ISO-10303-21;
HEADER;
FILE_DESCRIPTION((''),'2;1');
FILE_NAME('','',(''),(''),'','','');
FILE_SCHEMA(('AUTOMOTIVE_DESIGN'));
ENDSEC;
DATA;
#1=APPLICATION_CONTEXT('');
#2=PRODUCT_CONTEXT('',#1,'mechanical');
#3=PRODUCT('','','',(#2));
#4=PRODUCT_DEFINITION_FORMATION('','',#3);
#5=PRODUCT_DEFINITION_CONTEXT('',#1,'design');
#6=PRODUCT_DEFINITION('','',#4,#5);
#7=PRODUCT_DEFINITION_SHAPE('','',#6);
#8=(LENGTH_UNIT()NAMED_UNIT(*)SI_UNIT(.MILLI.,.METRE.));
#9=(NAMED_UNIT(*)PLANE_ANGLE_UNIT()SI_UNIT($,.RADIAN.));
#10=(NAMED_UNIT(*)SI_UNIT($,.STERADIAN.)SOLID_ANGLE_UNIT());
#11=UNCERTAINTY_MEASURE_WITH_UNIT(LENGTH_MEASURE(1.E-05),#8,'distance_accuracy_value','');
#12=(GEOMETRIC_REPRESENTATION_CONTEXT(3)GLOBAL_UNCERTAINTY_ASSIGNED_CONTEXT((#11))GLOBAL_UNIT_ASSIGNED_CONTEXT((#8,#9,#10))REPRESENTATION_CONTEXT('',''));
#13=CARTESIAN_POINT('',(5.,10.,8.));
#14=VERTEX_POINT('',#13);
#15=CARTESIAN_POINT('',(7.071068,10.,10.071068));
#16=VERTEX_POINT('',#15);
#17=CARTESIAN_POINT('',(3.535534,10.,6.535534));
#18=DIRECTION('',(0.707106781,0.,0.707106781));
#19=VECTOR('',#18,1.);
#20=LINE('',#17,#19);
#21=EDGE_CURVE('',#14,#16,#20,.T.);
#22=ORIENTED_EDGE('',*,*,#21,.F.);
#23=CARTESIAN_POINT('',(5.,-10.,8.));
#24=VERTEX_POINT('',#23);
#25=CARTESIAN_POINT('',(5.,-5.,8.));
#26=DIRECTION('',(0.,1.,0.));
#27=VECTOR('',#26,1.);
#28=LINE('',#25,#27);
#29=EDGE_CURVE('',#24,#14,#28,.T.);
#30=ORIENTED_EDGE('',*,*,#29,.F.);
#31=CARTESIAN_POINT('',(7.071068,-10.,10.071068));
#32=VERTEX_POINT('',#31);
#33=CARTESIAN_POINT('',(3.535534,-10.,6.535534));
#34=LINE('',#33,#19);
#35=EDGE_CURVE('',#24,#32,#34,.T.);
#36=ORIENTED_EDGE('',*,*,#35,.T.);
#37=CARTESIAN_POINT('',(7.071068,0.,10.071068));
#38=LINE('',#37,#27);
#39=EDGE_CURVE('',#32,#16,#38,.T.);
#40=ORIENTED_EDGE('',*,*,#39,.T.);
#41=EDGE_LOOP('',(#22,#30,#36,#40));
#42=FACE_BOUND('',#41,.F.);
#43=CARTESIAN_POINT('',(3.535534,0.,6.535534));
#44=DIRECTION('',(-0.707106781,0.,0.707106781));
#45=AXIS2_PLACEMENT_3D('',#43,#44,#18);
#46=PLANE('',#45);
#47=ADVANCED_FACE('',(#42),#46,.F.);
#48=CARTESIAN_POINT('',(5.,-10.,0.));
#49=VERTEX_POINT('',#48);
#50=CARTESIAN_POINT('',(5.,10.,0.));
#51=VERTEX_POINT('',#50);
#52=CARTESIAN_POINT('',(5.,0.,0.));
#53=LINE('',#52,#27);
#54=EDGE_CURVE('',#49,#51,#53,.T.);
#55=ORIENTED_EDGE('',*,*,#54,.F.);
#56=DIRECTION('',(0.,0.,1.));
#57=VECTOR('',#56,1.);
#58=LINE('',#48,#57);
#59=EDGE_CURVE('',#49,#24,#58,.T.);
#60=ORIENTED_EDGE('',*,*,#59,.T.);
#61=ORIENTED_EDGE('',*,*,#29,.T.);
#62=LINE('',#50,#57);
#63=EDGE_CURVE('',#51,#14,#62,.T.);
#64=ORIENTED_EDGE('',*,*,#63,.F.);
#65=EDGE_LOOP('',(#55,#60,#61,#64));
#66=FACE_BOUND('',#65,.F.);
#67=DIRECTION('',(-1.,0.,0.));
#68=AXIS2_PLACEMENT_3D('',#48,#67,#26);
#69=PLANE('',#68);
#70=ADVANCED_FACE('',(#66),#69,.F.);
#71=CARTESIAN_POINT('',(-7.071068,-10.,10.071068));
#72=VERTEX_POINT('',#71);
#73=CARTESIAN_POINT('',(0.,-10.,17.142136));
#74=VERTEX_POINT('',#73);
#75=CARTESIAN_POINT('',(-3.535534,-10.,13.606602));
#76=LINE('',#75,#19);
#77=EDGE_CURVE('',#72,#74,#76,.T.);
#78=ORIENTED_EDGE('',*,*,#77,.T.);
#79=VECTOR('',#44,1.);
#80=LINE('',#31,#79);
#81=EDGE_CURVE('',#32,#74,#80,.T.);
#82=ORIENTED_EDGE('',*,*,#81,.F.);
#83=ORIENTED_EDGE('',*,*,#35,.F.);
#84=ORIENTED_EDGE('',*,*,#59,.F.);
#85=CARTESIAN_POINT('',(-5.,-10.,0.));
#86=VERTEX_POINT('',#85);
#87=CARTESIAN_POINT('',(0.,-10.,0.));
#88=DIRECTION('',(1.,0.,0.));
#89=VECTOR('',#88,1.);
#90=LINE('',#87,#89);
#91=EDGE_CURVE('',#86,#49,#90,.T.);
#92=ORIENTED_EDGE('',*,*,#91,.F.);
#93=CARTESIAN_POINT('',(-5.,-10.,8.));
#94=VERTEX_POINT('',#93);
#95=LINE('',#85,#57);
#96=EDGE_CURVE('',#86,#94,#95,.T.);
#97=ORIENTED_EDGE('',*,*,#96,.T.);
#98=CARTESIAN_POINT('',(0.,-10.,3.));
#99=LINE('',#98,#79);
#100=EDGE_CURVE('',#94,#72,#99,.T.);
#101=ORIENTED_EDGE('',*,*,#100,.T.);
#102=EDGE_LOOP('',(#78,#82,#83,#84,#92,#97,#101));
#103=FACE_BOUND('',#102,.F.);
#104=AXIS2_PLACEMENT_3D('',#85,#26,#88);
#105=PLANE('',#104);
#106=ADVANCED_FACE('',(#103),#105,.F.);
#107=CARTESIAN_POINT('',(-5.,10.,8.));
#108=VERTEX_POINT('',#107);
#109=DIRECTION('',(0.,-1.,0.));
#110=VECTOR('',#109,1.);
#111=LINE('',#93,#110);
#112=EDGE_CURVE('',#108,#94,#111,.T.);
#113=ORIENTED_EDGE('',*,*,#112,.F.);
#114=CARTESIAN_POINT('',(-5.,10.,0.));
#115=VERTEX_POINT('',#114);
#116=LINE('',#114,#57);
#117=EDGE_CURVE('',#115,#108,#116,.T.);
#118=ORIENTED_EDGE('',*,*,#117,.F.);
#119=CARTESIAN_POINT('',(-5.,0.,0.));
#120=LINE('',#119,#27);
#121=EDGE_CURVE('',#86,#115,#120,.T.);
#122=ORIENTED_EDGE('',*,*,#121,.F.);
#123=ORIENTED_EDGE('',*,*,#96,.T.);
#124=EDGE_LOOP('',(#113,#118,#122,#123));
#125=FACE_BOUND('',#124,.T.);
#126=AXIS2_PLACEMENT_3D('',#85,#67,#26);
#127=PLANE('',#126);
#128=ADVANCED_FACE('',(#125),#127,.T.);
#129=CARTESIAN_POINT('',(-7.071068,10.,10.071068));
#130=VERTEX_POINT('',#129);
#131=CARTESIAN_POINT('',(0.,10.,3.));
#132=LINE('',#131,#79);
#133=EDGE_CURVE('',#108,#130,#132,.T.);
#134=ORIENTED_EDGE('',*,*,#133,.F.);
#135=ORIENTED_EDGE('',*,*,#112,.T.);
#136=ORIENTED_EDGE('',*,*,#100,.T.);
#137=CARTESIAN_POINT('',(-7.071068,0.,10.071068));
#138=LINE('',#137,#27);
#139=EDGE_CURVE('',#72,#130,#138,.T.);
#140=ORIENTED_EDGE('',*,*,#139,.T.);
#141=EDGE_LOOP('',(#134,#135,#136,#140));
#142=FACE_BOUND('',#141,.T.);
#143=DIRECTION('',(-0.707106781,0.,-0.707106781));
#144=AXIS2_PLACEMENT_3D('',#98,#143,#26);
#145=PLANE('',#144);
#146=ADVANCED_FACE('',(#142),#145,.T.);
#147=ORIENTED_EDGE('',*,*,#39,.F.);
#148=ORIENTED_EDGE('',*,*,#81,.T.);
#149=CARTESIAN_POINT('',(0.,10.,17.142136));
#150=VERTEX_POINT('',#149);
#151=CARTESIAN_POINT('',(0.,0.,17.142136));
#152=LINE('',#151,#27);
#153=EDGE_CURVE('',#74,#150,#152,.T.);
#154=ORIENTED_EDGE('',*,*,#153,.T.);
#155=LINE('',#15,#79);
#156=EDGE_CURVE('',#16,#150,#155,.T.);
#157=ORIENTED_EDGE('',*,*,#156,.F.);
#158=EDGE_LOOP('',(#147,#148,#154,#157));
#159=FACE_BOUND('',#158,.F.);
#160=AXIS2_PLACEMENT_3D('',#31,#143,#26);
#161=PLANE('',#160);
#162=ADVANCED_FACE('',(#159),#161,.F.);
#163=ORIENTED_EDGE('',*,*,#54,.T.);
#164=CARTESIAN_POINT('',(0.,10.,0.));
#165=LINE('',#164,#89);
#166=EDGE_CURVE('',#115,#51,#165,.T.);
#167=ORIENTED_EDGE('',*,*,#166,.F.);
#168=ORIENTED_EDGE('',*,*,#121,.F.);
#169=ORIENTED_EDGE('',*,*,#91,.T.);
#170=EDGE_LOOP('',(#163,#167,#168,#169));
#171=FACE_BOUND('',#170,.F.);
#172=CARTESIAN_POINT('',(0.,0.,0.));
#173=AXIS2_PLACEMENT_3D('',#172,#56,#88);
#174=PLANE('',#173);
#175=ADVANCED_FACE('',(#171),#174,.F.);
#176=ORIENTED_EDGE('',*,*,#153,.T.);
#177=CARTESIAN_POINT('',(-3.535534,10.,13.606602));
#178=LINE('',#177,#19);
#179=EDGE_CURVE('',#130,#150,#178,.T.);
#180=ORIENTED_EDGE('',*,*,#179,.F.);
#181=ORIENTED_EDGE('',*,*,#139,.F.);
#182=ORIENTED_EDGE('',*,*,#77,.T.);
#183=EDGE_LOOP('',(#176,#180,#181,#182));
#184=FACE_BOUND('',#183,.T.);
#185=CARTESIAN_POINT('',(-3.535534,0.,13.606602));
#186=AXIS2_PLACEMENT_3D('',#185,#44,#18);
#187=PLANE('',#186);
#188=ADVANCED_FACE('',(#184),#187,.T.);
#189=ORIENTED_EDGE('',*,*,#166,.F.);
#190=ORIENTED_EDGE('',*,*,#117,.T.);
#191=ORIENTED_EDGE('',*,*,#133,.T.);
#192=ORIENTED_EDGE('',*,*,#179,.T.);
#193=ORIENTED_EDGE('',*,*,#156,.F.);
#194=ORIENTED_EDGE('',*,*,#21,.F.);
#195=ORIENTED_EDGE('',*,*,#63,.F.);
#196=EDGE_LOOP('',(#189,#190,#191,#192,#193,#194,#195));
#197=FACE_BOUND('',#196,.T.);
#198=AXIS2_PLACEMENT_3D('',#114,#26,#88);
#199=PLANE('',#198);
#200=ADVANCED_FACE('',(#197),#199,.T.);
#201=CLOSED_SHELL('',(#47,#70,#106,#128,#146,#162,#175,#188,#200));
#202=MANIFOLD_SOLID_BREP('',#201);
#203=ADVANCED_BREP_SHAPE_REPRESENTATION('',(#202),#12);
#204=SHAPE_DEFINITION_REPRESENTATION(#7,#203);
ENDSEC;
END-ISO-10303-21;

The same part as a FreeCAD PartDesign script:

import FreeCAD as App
import Part
import Sketcher
Q = App.Units.Quantity

doc = App.newDocument("Part")
body = doc.addObject("PartDesign::Body", "Body")

sketch1 = body.newObject("Sketcher::SketchObject", "Sketch")
sketch1.AttachmentSupport = (doc.getObject("XY_Plane"), [""])
sketch1.MapMode = "FlatFace"
sketch1.addGeometry([
    Part.LineSegment(App.Vector(0, 20, 0), App.Vector(0, 0, 0)),
    Part.LineSegment(App.Vector(0, 0, 0), App.Vector(10, 0, 0)),
    Part.LineSegment(App.Vector(10, 0, 0), App.Vector(10, 20, 0)),
    Part.LineSegment(App.Vector(10, 20, 0), App.Vector(0, 20, 0)),
], False)
sketch1.addConstraint([
    Sketcher.Constraint("Coincident", 0, 2, 1, 1),
    Sketcher.Constraint("Coincident", 1, 2, 2, 1),
    Sketcher.Constraint("Coincident", 2, 2, 3, 1),
    Sketcher.Constraint("Coincident", 3, 2, 0, 1),
    Sketcher.Constraint("Vertical", 0),
    Sketcher.Constraint("Horizontal", 1),
    Sketcher.Constraint("Vertical", 2),
    Sketcher.Constraint("Horizontal", 3),
    Sketcher.Constraint("Coincident", 0, 2, -1, 1),
    Sketcher.Constraint("DistanceX", 1, 1, 1, 2, Q("10 mm")),
    Sketcher.Constraint("DistanceY", 0, 2, 0, 1, Q("20 mm")),
])
pad1 = body.newObject("PartDesign::Pad", "Pad")
pad1.Profile = sketch1
pad1.Length = 10
body2 = doc.addObject("PartDesign::Body", "Body001")
doc.recompute()

body.Placement = App.Placement(App.Vector(0, -10, 3), App.Rotation(App.Vector(0, 1, 0), 315))
boolean = body2.newObject("PartDesign::Boolean", "Boolean")
boolean.Type = "Fuse"
boolean.addObjects([body])
body3 = doc.addObject("PartDesign::Body", "Body002")

sketch2 = body3.newObject("Sketcher::SketchObject", "Sketch001")
sketch2.AttachmentSupport = (doc.getObject("XY_Plane002"), [""])
sketch2.MapMode = "FlatFace"
sketch2.addGeometry([
    Part.LineSegment(App.Vector(-5, 10, 0), App.Vector(-5, -10, 0)),
    Part.LineSegment(App.Vector(-5, -10, 0), App.Vector(5, -10, 0)),
    Part.LineSegment(App.Vector(5, -10, 0), App.Vector(5, 10, 0)),
    Part.LineSegment(App.Vector(5, 10, 0), App.Vector(-5, 10, 0)),
], False)
sketch2.addConstraint([
    Sketcher.Constraint("Coincident", 0, 2, 1, 1),
    Sketcher.Constraint("Coincident", 1, 2, 2, 1),
    Sketcher.Constraint("Coincident", 2, 2, 3, 1),
    Sketcher.Constraint("Coincident", 3, 2, 0, 1),
    Sketcher.Constraint("Vertical", 0),
    Sketcher.Constraint("Horizontal", 1),
    Sketcher.Constraint("Vertical", 2),
    Sketcher.Constraint("Horizontal", 3),
    Sketcher.Constraint("Symmetric", 0, 2, 2, 2, -1, 1),
    Sketcher.Constraint("DistanceX", 1, 1, 1, 2, Q("10 mm")),
    Sketcher.Constraint("DistanceY", 0, 2, 0, 1, Q("20 mm")),
])
pad2 = body3.newObject("PartDesign::Pad", "Pad001")
pad2.Profile = sketch2
pad2.Length = 10
doc.recompute()

boolean2 = body3.newObject("PartDesign::Boolean", "Boolean001")
boolean2.Type = "Fuse"
boolean2.addObjects([body2])

doc.recompute()
